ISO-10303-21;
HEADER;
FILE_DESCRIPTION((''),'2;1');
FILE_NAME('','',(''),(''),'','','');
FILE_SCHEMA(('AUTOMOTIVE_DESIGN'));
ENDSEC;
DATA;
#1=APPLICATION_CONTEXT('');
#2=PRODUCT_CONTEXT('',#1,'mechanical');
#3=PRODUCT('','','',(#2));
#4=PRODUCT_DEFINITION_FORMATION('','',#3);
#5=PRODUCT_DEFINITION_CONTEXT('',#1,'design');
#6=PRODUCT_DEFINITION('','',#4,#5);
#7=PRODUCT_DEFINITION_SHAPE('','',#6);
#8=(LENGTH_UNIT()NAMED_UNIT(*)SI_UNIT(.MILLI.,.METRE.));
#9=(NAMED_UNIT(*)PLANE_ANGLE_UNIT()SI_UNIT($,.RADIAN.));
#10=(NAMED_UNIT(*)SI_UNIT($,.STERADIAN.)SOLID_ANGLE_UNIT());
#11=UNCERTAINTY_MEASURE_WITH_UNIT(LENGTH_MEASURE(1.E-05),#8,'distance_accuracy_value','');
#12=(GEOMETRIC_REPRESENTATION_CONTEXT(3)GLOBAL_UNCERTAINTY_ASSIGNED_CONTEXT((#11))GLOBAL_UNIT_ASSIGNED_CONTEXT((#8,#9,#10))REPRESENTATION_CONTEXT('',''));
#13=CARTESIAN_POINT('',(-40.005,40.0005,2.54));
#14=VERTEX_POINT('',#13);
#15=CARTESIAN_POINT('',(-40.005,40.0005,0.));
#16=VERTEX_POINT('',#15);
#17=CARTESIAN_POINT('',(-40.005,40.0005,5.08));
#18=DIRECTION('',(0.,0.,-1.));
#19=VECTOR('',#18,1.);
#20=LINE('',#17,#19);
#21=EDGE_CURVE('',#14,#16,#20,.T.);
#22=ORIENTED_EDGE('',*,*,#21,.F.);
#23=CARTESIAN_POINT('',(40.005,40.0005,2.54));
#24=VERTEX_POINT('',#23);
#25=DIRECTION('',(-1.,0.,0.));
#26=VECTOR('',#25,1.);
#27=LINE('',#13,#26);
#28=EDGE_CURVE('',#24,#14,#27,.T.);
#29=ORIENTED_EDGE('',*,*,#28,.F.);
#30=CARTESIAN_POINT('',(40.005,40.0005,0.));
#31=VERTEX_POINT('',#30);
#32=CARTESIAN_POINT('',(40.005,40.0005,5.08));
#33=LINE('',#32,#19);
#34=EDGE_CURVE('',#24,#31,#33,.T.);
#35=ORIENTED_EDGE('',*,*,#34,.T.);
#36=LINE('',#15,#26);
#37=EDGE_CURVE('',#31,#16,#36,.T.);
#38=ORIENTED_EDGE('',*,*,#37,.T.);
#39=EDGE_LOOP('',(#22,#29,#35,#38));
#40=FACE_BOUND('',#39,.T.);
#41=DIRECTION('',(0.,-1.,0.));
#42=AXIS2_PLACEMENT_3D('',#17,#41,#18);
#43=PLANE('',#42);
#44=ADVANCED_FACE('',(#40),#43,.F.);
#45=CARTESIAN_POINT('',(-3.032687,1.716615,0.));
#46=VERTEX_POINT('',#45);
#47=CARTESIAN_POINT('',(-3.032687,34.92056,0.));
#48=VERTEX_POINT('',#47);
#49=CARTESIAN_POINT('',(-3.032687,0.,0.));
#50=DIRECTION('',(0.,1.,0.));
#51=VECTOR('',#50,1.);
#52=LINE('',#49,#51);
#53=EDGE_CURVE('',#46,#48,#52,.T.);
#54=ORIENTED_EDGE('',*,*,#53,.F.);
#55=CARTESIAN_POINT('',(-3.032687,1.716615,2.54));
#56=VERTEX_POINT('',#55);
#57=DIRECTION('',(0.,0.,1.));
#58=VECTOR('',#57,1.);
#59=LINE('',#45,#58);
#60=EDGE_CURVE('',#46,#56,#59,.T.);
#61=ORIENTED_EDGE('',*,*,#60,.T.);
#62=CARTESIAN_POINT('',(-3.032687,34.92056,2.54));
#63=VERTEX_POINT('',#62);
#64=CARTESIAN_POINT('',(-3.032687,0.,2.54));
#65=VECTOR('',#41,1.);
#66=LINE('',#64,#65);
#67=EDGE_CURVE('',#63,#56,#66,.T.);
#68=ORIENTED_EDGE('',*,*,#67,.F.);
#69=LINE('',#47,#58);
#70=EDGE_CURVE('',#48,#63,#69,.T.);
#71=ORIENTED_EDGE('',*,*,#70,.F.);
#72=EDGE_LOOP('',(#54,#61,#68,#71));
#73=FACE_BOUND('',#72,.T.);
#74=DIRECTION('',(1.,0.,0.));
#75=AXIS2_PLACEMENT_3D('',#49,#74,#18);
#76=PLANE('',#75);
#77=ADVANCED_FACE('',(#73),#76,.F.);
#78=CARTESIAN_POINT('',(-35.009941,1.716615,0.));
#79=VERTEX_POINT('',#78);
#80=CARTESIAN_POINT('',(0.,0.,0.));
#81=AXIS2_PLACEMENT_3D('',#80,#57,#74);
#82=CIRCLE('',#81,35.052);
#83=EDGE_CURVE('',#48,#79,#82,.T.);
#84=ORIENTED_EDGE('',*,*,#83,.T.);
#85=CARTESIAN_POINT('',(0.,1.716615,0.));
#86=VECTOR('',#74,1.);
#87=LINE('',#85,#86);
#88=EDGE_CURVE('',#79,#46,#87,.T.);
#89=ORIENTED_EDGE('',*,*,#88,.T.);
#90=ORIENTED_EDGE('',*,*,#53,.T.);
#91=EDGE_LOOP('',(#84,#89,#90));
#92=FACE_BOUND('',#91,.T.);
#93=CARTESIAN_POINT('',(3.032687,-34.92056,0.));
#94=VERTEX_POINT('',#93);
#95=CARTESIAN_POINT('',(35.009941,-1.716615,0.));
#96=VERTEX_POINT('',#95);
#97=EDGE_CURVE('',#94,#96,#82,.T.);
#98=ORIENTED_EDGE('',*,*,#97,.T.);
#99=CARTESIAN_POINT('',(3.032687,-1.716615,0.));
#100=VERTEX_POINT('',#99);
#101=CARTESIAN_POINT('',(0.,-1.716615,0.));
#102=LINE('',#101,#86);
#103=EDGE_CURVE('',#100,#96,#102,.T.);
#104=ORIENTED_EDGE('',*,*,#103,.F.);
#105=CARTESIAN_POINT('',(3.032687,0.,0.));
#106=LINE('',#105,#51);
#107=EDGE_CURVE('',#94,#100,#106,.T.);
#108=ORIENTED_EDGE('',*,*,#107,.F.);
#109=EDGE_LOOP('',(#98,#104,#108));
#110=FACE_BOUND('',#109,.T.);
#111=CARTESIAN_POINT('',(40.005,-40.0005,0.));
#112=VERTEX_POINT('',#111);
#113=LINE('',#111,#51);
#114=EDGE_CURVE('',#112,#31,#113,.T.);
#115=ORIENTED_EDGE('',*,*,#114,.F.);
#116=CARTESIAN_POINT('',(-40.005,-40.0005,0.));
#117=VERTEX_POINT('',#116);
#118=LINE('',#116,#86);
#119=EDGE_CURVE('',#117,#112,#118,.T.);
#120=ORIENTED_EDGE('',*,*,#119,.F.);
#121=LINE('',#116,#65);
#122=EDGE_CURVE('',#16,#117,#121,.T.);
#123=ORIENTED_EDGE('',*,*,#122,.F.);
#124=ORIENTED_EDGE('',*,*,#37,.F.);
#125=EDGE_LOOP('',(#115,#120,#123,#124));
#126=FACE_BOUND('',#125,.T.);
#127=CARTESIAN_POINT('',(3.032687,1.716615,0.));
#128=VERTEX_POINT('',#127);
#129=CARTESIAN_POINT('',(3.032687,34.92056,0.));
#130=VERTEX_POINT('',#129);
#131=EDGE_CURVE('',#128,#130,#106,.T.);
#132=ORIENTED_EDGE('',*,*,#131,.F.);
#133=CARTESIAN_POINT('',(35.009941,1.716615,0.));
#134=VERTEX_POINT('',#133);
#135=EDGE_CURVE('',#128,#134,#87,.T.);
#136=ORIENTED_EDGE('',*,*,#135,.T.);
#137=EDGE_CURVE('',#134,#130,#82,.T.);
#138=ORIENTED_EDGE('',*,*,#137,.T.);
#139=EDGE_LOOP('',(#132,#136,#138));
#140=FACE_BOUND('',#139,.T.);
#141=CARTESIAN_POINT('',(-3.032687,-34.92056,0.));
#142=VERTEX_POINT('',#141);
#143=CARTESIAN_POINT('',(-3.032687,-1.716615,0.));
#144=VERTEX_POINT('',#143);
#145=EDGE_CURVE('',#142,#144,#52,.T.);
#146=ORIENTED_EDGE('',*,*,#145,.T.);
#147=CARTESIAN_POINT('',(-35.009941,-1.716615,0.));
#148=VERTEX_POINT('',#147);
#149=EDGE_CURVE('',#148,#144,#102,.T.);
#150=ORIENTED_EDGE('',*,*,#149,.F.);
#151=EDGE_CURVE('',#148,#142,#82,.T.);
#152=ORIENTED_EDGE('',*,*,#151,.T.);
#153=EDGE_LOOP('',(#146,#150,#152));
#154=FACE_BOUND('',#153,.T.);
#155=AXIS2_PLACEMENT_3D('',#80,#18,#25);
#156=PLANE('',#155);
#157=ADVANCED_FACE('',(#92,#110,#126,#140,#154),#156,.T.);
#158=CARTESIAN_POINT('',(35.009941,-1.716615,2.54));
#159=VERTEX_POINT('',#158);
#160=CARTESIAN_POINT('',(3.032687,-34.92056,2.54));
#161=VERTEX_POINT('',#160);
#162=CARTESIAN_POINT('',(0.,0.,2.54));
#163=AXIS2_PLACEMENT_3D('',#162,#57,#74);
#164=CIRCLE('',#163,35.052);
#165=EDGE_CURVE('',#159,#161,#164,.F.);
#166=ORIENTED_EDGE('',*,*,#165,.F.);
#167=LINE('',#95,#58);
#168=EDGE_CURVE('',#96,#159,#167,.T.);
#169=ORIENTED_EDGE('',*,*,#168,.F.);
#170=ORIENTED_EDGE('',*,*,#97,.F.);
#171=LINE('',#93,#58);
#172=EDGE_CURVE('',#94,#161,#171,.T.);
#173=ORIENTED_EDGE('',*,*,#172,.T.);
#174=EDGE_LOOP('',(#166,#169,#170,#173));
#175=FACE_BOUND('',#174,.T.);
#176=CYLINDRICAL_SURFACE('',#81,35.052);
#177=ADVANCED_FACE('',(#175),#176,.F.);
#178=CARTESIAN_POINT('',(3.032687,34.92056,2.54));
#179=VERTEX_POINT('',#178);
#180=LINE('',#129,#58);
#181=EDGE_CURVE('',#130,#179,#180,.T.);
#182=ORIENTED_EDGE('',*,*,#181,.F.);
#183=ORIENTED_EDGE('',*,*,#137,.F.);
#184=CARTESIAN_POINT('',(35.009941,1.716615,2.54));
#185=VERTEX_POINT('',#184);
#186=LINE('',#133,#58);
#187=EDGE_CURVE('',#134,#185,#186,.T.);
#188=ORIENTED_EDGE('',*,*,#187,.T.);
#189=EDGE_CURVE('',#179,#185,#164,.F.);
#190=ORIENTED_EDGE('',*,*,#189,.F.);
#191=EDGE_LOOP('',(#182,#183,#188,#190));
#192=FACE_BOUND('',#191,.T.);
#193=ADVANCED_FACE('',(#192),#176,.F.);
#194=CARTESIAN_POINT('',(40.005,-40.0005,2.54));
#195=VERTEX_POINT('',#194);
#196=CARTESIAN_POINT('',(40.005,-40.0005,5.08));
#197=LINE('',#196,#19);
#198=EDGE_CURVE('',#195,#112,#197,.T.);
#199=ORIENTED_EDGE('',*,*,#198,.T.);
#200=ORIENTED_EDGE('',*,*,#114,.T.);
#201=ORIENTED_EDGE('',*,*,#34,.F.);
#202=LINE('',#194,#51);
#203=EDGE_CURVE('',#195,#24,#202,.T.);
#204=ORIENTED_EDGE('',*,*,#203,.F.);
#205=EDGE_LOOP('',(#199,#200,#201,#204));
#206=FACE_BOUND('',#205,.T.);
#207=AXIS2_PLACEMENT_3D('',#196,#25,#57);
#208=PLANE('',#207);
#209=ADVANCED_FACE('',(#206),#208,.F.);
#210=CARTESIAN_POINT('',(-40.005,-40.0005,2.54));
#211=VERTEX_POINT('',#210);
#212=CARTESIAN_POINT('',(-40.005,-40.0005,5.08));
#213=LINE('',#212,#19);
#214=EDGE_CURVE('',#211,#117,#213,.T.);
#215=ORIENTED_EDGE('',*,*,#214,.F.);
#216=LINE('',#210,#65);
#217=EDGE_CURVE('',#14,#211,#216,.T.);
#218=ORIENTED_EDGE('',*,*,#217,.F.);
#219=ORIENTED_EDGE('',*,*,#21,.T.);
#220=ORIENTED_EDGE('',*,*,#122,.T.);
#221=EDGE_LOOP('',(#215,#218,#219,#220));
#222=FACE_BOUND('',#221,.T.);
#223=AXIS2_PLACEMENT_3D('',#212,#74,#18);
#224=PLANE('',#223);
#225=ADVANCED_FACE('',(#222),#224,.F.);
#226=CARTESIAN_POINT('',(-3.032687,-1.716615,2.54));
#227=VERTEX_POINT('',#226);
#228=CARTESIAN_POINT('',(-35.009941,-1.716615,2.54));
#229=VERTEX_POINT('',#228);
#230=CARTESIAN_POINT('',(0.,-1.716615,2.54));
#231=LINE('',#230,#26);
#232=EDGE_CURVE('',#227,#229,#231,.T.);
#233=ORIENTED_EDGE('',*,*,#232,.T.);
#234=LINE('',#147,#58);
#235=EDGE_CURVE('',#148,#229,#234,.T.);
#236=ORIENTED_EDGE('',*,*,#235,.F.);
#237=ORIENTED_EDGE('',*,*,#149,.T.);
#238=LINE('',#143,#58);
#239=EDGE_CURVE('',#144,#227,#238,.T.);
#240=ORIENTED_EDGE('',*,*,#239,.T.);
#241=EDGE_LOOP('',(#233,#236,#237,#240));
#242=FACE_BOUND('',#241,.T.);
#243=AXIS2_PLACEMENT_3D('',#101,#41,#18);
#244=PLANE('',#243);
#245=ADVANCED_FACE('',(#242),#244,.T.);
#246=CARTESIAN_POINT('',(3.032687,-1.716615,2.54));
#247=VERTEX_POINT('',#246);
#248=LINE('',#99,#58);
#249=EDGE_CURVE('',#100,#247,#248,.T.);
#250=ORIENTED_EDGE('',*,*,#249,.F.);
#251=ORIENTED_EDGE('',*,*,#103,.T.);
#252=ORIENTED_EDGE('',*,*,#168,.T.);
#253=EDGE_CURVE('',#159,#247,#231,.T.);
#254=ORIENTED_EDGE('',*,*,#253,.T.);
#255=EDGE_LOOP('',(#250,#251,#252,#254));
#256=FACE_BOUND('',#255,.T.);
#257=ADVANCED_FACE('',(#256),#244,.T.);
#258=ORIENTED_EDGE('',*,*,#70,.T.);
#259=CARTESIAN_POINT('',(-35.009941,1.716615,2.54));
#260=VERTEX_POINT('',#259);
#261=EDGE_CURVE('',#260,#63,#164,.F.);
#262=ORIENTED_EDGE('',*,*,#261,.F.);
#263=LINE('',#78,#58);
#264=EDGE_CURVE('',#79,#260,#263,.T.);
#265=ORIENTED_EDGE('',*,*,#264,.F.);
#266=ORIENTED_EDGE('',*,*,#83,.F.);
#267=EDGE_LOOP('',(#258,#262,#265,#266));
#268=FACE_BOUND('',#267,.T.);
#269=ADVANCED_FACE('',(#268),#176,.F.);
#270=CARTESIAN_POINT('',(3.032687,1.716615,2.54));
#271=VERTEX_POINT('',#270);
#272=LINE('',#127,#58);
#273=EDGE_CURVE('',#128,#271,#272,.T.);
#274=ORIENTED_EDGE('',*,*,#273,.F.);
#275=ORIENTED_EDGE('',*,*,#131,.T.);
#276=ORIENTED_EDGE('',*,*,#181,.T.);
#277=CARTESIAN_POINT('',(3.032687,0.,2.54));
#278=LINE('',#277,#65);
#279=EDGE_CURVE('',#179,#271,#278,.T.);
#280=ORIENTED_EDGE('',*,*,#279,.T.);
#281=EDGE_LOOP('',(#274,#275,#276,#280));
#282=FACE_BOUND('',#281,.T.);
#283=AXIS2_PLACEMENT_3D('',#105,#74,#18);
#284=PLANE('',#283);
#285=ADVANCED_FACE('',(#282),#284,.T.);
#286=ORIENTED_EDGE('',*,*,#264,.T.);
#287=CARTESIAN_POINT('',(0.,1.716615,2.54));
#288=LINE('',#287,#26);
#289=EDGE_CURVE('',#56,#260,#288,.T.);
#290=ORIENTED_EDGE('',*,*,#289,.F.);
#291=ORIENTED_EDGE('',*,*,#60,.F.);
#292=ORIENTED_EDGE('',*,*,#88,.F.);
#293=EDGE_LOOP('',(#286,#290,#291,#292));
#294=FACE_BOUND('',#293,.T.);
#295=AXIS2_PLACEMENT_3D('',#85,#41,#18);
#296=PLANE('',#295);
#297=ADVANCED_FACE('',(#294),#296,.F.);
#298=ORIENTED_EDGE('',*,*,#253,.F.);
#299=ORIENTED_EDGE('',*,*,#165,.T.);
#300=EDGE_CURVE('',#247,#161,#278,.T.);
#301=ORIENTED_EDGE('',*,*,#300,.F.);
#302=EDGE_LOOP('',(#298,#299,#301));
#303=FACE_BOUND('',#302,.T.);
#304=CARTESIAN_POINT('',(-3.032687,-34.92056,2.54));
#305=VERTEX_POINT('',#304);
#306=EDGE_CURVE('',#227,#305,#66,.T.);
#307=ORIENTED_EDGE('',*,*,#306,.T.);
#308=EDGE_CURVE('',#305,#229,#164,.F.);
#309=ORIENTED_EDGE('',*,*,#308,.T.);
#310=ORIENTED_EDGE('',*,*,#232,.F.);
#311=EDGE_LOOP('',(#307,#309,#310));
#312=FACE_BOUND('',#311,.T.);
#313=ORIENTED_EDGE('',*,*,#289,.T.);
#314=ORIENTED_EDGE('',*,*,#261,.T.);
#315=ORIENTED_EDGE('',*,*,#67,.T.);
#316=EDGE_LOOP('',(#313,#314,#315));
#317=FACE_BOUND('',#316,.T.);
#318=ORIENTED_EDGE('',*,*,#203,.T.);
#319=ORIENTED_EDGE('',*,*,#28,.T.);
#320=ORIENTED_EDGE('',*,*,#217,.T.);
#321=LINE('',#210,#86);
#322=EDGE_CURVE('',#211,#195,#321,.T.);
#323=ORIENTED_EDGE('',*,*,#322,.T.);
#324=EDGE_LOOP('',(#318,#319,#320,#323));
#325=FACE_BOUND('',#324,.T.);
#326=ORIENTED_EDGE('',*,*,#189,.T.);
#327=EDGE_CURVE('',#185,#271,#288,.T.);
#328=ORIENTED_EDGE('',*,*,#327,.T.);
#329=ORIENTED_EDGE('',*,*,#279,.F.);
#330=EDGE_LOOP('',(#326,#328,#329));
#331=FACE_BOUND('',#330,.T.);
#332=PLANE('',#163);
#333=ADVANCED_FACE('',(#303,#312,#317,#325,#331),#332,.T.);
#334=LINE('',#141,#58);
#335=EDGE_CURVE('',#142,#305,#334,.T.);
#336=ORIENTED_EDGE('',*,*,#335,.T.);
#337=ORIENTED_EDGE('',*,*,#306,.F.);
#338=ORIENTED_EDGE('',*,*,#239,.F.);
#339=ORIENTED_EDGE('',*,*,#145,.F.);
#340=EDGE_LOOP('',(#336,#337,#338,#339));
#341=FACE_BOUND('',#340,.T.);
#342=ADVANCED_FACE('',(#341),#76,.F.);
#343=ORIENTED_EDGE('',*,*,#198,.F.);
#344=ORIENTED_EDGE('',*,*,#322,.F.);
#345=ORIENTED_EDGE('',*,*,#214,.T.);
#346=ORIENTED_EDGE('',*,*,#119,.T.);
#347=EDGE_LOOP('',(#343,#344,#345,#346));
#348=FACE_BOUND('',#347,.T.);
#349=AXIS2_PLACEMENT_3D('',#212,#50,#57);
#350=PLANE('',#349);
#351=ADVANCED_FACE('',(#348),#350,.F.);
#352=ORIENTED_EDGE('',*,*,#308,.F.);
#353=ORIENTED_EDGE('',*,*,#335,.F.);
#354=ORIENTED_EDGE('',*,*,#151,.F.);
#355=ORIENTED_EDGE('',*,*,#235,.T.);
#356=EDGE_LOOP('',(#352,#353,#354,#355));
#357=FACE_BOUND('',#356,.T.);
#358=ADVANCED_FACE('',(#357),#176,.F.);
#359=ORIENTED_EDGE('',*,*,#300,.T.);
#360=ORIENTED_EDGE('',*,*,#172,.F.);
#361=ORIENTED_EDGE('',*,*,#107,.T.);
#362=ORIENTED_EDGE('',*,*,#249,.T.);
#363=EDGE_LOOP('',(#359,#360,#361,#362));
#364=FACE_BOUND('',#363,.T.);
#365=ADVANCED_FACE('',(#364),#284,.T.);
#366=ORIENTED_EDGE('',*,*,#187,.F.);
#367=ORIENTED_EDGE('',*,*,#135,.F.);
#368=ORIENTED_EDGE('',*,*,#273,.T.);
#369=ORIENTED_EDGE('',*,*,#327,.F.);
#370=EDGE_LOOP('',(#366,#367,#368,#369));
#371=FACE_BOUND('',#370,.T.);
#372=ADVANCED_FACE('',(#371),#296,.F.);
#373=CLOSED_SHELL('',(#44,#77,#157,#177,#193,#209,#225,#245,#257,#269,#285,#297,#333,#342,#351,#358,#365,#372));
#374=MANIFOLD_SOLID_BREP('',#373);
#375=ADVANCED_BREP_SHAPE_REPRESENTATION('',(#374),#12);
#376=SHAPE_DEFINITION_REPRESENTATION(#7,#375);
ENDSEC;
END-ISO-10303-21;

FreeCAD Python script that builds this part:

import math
import FreeCAD as App
import Part
import Sketcher
Q = App.Units.Quantity

doc = App.newDocument("Part")
body = doc.addObject("PartDesign::Body", "Body")

sketch1 = body.newObject("Sketcher::SketchObject", "Sketch")
sketch1.AttachmentSupport = (doc.getObject("XY_Plane"), [""])
sketch1.MapMode = "FlatFace"
sketch1.addGeometry(Part.LineSegment(App.Vector(-40, 40, 0), App.Vector(-40, -40, 0)), False)
sketch1.addGeometry(Part.LineSegment(App.Vector(-40, -40, 0), App.Vector(40, -40, 0)), False)
sketch1.addGeometry(Part.LineSegment(App.Vector(40, -40, 0), App.Vector(40, 40, 0)), False)
sketch1.addGeometry(Part.LineSegment(App.Vector(40, 40, 0), App.Vector(-40, 40, 0)), False)
sketch1.addConstraint(Sketcher.Constraint("Coincident", 0, 2, 1, 1))
sketch1.addConstraint(Sketcher.Constraint("Coincident", 1, 2, 2, 1))
sketch1.addConstraint(Sketcher.Constraint("Coincident", 2, 2, 3, 1))
sketch1.addConstraint(Sketcher.Constraint("Coincident", 3, 2, 0, 1))
sketch1.addConstraint(Sketcher.Constraint("Vertical", 0))
sketch1.addConstraint(Sketcher.Constraint("Horizontal", 1))
sketch1.addConstraint(Sketcher.Constraint("Vertical", 2))
sketch1.addConstraint(Sketcher.Constraint("Horizontal", 3))
sketch1.addConstraint(Sketcher.Constraint("Symmetric", 0, 2, 2, 2, -1, 1))
sketch1.addConstraint(Sketcher.Constraint("DistanceX", 1, 1, 1, 2, Q("3.15 in")))
sketch1.addConstraint(Sketcher.Constraint("DistanceY", 0, 2, 0, 1, 80.001))
pad1 = body.newObject("PartDesign::Pad", "Pad")
pad1.Profile = sketch1
pad1.Length = Q("0.2 in")

sketch2 = body.newObject("Sketcher::SketchObject", "Sketch001")
sketch2.AttachmentSupport = (doc.getObject("XY_Plane"), [""])
sketch2.MapMode = "FlatFace"
sketch2.AttachmentOffset = App.Placement(App.Vector(0, 0, 0.2 * 25.4), App.Rotation())
sketch2.addGeometry(Part.Circle(App.Vector(0, 0, 0), App.Vector(0, 0, 1), 35), False)
sketch2.addConstraint(Sketcher.Constraint("Coincident", 0, 3, -1, 1))
sketch2.addConstraint(Sketcher.Constraint("Diameter", 0, Q("2.76 in")))
pocket1 = body.newObject("PartDesign::Pocket", "Pocket")
pocket1.Profile = sketch2
pocket1.Length = Q("0.2 in")

sketch3 = body.newObject("Sketcher::SketchObject", "Sketch002")
sketch3.AttachmentSupport = (doc.getObject("XY_Plane"), [""])
sketch3.MapMode = "FlatFace"
sketch3.AttachmentOffset = App.Placement(App.Vector(0, 0, 0.2 * 25.4), App.Rotation())
sketch3.addGeometry(Part.ArcOfCircle(Part.Circle(App.Vector(0, 0, 0), App.Vector(0, 0, 1), 35.1), math.radians(85.04), math.radians(90)), False)
sketch3.addGeometry(Part.ArcOfCircle(Part.Circle(App.Vector(0, 0, 0), App.Vector(0, 0, 1), 35.1), math.radians(90), math.radians(94.96)), False)
sketch3.addGeometry(Part.LineSegment(App.Vector(-3, 34.9, 0), App.Vector(-3, 1.7, 0)), False)
sketch3.addGeometry(Part.LineSegment(App.Vector(-3, 1.7, 0), App.Vector(-35, 1.7, 0)), False)
sketch3.addGeometry(Part.ArcOfCircle(Part.Circle(App.Vector(0, 0, 0), App.Vector(0, 0, 1), 35.1), math.radians(177.19), math.radians(182.81)), False)
sketch3.addGeometry(Part.LineSegment(App.Vector(-35, -1.7, 0), App.Vector(-3, -1.7, 0)), False)
sketch3.addGeometry(Part.LineSegment(App.Vector(-3, -1.7, 0), App.Vector(-3, -34.9, 0)), False)
sketch3.addGeometry(Part.ArcOfCircle(Part.Circle(App.Vector(0, 0, 0), App.Vector(0, 0, 1), 35.1), math.radians(-94.96), math.radians(-90)), False)
sketch3.addGeometry(Part.ArcOfCircle(Part.Circle(App.Vector(0, 0, 0), App.Vector(0, 0, 1), 35.1), math.radians(-90), math.radians(-85.04)), False)
sketch3.addGeometry(Part.LineSegment(App.Vector(3, -34.9, 0), App.Vector(3, -1.7, 0)), False)
sketch3.addGeometry(Part.LineSegment(App.Vector(3, -1.7, 0), App.Vector(35, -1.7, 0)), False)
sketch3.addGeometry(Part.ArcOfCircle(Part.Circle(App.Vector(0, 0, 0), App.Vector(0, 0, 1), 35.1), math.radians(-2.81), math.radians(0)), False)
sketch3.addGeometry(Part.ArcOfCircle(Part.Circle(App.Vector(0, 0, 0), App.Vector(0, 0, 1), 35.1), math.radians(0), math.radians(2.81)), False)
sketch3.addGeometry(Part.LineSegment(App.Vector(35, 1.7, 0), App.Vector(3, 1.7, 0)), False)
sketch3.addGeometry(Part.LineSegment(App.Vector(3, 1.7, 0), App.Vector(3, 34.9, 0)), False)
sketch3.addConstraint(Sketcher.Constraint("Tangent", 0, 2, 1, 1))
sketch3.addConstraint(Sketcher.Constraint("Coincident", 1, 2, 2, 1))
sketch3.addConstraint(Sketcher.Constraint("Coincident", 2, 2, 3, 1))
sketch3.addConstraint(Sketcher.Constraint("Coincident", 3, 2, 4, 1))
sketch3.addConstraint(Sketcher.Constraint("Coincident", 4, 2, 5, 1))
sketch3.addConstraint(Sketcher.Constraint("Coincident", 5, 2, 6, 1))
sketch3.addConstraint(Sketcher.Constraint("Coincident", 6, 2, 7, 1))
sketch3.addConstraint(Sketcher.Constraint("Tangent", 7, 2, 8, 1))
sketch3.addConstraint(Sketcher.Constraint("Coincident", 8, 2, 9, 1))
sketch3.addConstraint(Sketcher.Constraint("Coincident", 9, 2, 10, 1))
sketch3.addConstraint(Sketcher.Constraint("Coincident", 10, 2, 11, 1))
sketch3.addConstraint(Sketcher.Constraint("Tangent", 11, 2, 12, 1))
sketch3.addConstraint(Sketcher.Constraint("Coincident", 12, 2, 13, 1))
sketch3.addConstraint(Sketcher.Constraint("Coincident", 13, 2, 14, 1))
sketch3.addConstraint(Sketcher.Constraint("Coincident", 14, 2, 0, 1))
sketch3.addConstraint(Sketcher.Constraint("Vertical", 2))
sketch3.addConstraint(Sketcher.Constraint("Horizontal", 3))
sketch3.addConstraint(Sketcher.Constraint("Horizontal", 5))
sketch3.addConstraint(Sketcher.Constraint("Vertical", 6))
sketch3.addConstraint(Sketcher.Constraint("Vertical", 9))
sketch3.addConstraint(Sketcher.Constraint("Horizontal", 10))
sketch3.addConstraint(Sketcher.Constraint("Horizontal", 13))
sketch3.addConstraint(Sketcher.Constraint("Vertical", 14))
sketch3.addConstraint(Sketcher.Constraint("Coincident", 0, 3, -1, 1))
sketch3.addConstraint(Sketcher.Constraint("Coincident", 4, 3, -1, 1))
sketch3.addConstraint(Sketcher.Constraint("Coincident", 7, 3, -1, 1))
sketch3.addConstraint(Sketcher.Constraint("Coincident", 11, 3, -1, 1))
sketch3.addConstraint(Sketcher.Constraint("Equal", 0, 1))
sketch3.addConstraint(Sketcher.Constraint("Equal", 1, 4))
sketch3.addConstraint(Sketcher.Constraint("Equal", 4, 7))
sketch3.addConstraint(Sketcher.Constraint("Equal", 7, 8))
sketch3.addConstraint(Sketcher.Constraint("Equal", 8, 11))
sketch3.addConstraint(Sketcher.Constraint("Equal", 11, 12))
sketch3.addConstraint(Sketcher.Constraint("Symmetric", 2, 2, 9, 2, -1, 1))
sketch3.addConstraint(Sketcher.Constraint("Symmetric", 5, 2, 13, 2, -1, 1))
sketch3.addConstraint(Sketcher.Constraint("Symmetric", 5, 2, 9, 2, -2))
sketch3.addConstraint(Sketcher.Constraint("PointOnObject", 0, 2, -2))
sketch3.addConstraint(Sketcher.Constraint("PointOnObject", 7, 2, -2))
sketch3.addConstraint(Sketcher.Constraint("PointOnObject", 11, 2, -1))
sketch3.addConstraint(Sketcher.Constraint("Radius", 0, Q("1.38 in")))
sketch3.addConstraint(Sketcher.Constraint("DistanceX", 3, 2, 3, 1, 31.977254))
sketch3.addConstraint(Sketcher.Constraint("DistanceY", 2, 2, 2, 1, 33.203945))
pad2 = body.newObject("PartDesign::Pad", "Pad001")
pad2.Profile = sketch3
pad2.Length = Q("0.2 in")
pad2.Reversed = True

sketch4 = body.newObject("Sketcher::SketchObject", "Sketch003")
sketch4.AttachmentSupport = (doc.getObject("XY_Plane"), [""])
sketch4.MapMode = "FlatFace"
sketch4.AttachmentOffset = App.Placement(App.Vector(0, 0, 0.2 * 25.4), App.Rotation())
sketch4.addGeometry(Part.LineSegment(App.Vector(-59, 53, 0), App.Vector(-59, -54, 0)), False)
sketch4.addGeometry(Part.LineSegment(App.Vector(-59, -54, 0), App.Vector(76, -54, 0)), False)
sketch4.addGeometry(Part.LineSegment(App.Vector(76, -54, 0), App.Vector(76, 53, 0)), False)
sketch4.addGeometry(Part.LineSegment(App.Vector(76, 53, 0), App.Vector(-59, 53, 0)), False)
sketch4.addConstraint(Sketcher.Constraint("Coincident", 0, 2, 1, 1))
sketch4.addConstraint(Sketcher.Constraint("Coincident", 1, 2, 2, 1))
sketch4.addConstraint(Sketcher.Constraint("Coincident", 2, 2, 3, 1))
sketch4.addConstraint(Sketcher.Constraint("Coincident", 3, 2, 0, 1))
sketch4.addConstraint(Sketcher.Constraint("Vertical", 0))
sketch4.addConstraint(Sketcher.Constraint("Horizontal", 1))
sketch4.addConstraint(Sketcher.Constraint("Vertical", 2))
sketch4.addConstraint(Sketcher.Constraint("Horizontal", 3))
sketch4.addConstraint(Sketcher.Constraint("DistanceY", 0, 2, 0, 1, 106.556052))
sketch4.addConstraint(Sketcher.Constraint("DistanceX", 1, 1, 1, 2, 135.597083))
sketch4.addConstraint(Sketcher.Constraint("DistanceX", 0, 2, -1, 1, 59.188278))
sketch4.addConstraint(Sketcher.Constraint("DistanceY", 0, 2, -1, 1, 53.955626))
pocket2 = body.newObject("PartDesign::Pocket", "Pocket001")
pocket2.Profile = sketch4
pocket2.Length = Q("0.1 in")

doc.recompute()
